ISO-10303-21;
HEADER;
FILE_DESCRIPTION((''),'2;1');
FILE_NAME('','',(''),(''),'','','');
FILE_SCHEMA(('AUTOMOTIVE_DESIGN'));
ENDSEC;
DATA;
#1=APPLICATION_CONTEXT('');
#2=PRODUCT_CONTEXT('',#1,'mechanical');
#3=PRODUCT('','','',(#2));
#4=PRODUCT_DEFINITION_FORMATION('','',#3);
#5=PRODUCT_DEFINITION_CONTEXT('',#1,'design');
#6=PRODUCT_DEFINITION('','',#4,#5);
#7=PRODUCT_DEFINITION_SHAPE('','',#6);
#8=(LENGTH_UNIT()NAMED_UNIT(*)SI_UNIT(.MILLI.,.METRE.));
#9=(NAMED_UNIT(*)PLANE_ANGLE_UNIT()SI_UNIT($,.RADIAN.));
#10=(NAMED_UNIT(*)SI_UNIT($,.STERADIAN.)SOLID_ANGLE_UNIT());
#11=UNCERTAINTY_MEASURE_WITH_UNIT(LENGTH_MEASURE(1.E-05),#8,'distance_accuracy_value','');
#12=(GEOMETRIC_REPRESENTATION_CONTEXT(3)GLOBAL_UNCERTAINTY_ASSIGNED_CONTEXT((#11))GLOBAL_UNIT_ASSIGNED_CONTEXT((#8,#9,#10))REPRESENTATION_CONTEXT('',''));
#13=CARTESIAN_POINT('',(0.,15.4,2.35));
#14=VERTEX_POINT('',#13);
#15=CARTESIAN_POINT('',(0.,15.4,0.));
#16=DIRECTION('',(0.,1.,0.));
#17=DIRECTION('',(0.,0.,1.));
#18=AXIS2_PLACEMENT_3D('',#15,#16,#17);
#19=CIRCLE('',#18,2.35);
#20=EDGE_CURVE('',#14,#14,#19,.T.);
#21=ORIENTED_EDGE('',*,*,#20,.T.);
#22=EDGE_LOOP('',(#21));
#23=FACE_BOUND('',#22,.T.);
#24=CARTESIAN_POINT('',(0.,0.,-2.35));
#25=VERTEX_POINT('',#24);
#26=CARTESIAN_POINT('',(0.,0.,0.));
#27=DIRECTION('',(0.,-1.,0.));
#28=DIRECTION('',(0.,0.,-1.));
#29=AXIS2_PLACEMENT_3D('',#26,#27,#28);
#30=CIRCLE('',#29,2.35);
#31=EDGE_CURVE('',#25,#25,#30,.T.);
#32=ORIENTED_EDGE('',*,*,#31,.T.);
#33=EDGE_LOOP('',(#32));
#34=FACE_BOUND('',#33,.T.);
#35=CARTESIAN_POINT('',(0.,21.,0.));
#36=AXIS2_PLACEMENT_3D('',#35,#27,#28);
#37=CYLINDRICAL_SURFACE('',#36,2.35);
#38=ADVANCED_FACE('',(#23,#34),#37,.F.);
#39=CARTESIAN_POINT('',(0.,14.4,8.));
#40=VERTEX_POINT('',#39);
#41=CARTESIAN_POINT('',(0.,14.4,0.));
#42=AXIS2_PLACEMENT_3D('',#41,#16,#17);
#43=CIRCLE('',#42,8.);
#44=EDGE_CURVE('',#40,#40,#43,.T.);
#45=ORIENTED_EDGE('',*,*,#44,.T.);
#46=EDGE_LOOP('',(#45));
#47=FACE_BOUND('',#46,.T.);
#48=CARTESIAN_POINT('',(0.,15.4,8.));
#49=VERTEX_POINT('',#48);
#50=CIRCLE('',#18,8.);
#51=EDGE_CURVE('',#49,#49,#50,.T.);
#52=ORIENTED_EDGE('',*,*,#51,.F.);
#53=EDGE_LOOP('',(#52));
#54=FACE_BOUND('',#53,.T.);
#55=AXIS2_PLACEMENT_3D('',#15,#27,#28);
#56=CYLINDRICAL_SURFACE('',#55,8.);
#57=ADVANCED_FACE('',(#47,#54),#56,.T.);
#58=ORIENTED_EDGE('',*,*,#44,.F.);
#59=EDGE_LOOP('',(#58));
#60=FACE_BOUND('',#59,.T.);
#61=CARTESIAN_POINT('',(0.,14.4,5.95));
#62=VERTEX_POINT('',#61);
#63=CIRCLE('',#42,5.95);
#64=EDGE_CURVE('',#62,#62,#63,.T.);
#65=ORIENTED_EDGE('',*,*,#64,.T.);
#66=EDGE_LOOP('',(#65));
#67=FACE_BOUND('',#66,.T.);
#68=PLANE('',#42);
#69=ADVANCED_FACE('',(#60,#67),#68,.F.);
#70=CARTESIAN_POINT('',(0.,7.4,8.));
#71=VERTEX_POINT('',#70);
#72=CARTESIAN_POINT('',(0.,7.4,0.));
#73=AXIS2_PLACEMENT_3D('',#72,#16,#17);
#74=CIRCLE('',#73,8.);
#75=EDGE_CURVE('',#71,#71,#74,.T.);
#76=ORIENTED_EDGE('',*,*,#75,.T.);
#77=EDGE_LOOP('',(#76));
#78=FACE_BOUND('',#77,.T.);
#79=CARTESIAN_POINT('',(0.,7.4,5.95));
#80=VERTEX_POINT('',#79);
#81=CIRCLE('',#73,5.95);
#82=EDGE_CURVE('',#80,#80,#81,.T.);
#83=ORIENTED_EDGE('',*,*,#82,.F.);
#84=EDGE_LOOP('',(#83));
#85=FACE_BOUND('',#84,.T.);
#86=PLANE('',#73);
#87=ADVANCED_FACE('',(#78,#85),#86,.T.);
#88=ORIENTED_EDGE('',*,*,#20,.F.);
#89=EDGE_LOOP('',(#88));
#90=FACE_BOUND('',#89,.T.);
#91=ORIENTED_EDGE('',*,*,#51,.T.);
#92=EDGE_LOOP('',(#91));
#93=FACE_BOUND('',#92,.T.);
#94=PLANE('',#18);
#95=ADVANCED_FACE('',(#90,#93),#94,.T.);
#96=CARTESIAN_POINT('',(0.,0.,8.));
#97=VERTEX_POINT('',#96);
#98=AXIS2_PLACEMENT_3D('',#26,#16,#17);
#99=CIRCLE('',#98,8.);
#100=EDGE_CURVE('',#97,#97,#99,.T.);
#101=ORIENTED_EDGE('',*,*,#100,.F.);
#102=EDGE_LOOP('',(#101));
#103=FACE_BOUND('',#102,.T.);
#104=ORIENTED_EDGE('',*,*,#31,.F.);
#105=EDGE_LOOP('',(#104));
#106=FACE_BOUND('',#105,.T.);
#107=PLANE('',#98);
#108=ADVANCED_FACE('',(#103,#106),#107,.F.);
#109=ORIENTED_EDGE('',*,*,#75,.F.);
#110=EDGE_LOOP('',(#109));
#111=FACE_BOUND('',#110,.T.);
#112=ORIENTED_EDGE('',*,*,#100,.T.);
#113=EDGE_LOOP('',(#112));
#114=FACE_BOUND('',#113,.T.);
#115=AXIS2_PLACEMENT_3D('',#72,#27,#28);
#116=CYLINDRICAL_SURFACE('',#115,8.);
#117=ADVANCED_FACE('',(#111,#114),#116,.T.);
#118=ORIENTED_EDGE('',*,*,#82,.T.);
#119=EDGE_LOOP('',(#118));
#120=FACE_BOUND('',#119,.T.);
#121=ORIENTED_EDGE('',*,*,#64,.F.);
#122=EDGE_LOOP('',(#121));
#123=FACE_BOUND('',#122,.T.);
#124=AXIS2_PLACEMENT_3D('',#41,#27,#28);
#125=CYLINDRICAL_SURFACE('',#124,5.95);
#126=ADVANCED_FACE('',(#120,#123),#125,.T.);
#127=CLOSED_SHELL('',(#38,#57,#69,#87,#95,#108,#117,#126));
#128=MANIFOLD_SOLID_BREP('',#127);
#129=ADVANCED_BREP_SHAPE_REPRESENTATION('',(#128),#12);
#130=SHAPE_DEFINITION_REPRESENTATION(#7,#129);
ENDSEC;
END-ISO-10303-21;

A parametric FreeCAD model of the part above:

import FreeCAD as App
import Part
import Sketcher

doc = App.newDocument("Part")
params = doc.addObject("Spreadsheet::Sheet", "Params")
for row, (alias, value) in enumerate([
    ("sketch1_diameter", "16 mm"),
    ("pad1_length", "7.4 mm"),
    ("sketch2_diameter", "11.9 mm"),
    ("pad2_length", "7 mm"),
    ("sketch3_diameter", "16 mm"),
    ("pad3_length", "1 mm"),
    ("sketch4_diameter", "4.7 mm"),
    ("pocket1_length", "21 mm"),
], start=1):
    params.set(f"A{row}", alias)
    params.set(f"B{row}", "=" + value)
    params.setAlias(f"B{row}", alias)

body = doc.addObject("PartDesign::Body", "Body")

sketch1 = doc.addObject("Sketcher::SketchObject", "Sketch")
body.addObject(sketch1)
sketch1.AttachmentSupport = (doc.XZ_Plane, [""])
sketch1.MapMode = "FlatFace"
sketch1.addGeometry(Part.Circle(App.Vector(0, 0, 0), App.Vector(0, 0, 1), 8), False)
sketch1.addConstraint(Sketcher.Constraint("Coincident", 0, 3, -1, 1))
sketch1.addConstraint(Sketcher.Constraint("Diameter", 0, 16.0))
sketch1.setExpression("Constraints[1]", "Params.sketch1_diameter")
pad1 = doc.addObject("PartDesign::Pad", "Pad")
body.addObject(pad1)
pad1.Profile = sketch1
pad1.setExpression("Length", "Params.pad1_length")
pad1.Reversed = True

sketch2 = doc.addObject("Sketcher::SketchObject", "Sketch001")
body.addObject(sketch2)
sketch2.AttachmentSupport = (doc.XZ_Plane, [""])
sketch2.MapMode = "FlatFace"
sketch2.AttachmentOffset = App.Placement(App.Vector(0, 0, -7.4), App.Rotation())
sketch2.addGeometry(Part.Circle(App.Vector(0, 0, 0), App.Vector(0, 0, 1), 6), False)
sketch2.addConstraint(Sketcher.Constraint("Coincident", 0, 3, -1, 1))
sketch2.addConstraint(Sketcher.Constraint("Diameter", 0, 11.9))
sketch2.setExpression("Constraints[1]", "Params.sketch2_diameter")
pad2 = doc.addObject("PartDesign::Pad", "Pad001")
body.addObject(pad2)
pad2.Profile = sketch2
pad2.setExpression("Length", "Params.pad2_length")
pad2.Reversed = True

sketch3 = doc.addObject("Sketcher::SketchObject", "Sketch002")
body.addObject(sketch3)
sketch3.AttachmentSupport = (doc.XZ_Plane, [""])
sketch3.MapMode = "FlatFace"
sketch3.AttachmentOffset = App.Placement(App.Vector(0, 0, -14.4), App.Rotation())
sketch3.addGeometry(Part.Circle(App.Vector(0, 0, 0), App.Vector(0, 0, 1), 8), False)
sketch3.addConstraint(Sketcher.Constraint("Coincident", 0, 3, -1, 1))
sketch3.addConstraint(Sketcher.Constraint("Diameter", 0, 16.0))
sketch3.setExpression("Constraints[1]", "Params.sketch3_diameter")
pad3 = doc.addObject("PartDesign::Pad", "Pad002")
body.addObject(pad3)
pad3.Profile = sketch3
pad3.setExpression("Length", "Params.pad3_length")
pad3.Reversed = True

sketch4 = doc.addObject("Sketcher::SketchObject", "Sketch003")
body.addObject(sketch4)
sketch4.AttachmentSupport = (doc.XZ_Plane, [""])
sketch4.MapMode = "FlatFace"
sketch4.addGeometry(Part.Circle(App.Vector(0, 0, 0), App.Vector(0, 0, 1), 2.4), False)
sketch4.addConstraint(Sketcher.Constraint("Coincident", 0, 3, -1, 1))
sketch4.addConstraint(Sketcher.Constraint("Diameter", 0, 4.7))
sketch4.setExpression("Constraints[1]", "Params.sketch4_diameter")
pocket1 = doc.addObject("PartDesign::Pocket", "Pocket")
body.addObject(pocket1)
pocket1.Profile = sketch4
pocket1.setExpression("Length", "Params.pocket1_length")

doc.recompute()
